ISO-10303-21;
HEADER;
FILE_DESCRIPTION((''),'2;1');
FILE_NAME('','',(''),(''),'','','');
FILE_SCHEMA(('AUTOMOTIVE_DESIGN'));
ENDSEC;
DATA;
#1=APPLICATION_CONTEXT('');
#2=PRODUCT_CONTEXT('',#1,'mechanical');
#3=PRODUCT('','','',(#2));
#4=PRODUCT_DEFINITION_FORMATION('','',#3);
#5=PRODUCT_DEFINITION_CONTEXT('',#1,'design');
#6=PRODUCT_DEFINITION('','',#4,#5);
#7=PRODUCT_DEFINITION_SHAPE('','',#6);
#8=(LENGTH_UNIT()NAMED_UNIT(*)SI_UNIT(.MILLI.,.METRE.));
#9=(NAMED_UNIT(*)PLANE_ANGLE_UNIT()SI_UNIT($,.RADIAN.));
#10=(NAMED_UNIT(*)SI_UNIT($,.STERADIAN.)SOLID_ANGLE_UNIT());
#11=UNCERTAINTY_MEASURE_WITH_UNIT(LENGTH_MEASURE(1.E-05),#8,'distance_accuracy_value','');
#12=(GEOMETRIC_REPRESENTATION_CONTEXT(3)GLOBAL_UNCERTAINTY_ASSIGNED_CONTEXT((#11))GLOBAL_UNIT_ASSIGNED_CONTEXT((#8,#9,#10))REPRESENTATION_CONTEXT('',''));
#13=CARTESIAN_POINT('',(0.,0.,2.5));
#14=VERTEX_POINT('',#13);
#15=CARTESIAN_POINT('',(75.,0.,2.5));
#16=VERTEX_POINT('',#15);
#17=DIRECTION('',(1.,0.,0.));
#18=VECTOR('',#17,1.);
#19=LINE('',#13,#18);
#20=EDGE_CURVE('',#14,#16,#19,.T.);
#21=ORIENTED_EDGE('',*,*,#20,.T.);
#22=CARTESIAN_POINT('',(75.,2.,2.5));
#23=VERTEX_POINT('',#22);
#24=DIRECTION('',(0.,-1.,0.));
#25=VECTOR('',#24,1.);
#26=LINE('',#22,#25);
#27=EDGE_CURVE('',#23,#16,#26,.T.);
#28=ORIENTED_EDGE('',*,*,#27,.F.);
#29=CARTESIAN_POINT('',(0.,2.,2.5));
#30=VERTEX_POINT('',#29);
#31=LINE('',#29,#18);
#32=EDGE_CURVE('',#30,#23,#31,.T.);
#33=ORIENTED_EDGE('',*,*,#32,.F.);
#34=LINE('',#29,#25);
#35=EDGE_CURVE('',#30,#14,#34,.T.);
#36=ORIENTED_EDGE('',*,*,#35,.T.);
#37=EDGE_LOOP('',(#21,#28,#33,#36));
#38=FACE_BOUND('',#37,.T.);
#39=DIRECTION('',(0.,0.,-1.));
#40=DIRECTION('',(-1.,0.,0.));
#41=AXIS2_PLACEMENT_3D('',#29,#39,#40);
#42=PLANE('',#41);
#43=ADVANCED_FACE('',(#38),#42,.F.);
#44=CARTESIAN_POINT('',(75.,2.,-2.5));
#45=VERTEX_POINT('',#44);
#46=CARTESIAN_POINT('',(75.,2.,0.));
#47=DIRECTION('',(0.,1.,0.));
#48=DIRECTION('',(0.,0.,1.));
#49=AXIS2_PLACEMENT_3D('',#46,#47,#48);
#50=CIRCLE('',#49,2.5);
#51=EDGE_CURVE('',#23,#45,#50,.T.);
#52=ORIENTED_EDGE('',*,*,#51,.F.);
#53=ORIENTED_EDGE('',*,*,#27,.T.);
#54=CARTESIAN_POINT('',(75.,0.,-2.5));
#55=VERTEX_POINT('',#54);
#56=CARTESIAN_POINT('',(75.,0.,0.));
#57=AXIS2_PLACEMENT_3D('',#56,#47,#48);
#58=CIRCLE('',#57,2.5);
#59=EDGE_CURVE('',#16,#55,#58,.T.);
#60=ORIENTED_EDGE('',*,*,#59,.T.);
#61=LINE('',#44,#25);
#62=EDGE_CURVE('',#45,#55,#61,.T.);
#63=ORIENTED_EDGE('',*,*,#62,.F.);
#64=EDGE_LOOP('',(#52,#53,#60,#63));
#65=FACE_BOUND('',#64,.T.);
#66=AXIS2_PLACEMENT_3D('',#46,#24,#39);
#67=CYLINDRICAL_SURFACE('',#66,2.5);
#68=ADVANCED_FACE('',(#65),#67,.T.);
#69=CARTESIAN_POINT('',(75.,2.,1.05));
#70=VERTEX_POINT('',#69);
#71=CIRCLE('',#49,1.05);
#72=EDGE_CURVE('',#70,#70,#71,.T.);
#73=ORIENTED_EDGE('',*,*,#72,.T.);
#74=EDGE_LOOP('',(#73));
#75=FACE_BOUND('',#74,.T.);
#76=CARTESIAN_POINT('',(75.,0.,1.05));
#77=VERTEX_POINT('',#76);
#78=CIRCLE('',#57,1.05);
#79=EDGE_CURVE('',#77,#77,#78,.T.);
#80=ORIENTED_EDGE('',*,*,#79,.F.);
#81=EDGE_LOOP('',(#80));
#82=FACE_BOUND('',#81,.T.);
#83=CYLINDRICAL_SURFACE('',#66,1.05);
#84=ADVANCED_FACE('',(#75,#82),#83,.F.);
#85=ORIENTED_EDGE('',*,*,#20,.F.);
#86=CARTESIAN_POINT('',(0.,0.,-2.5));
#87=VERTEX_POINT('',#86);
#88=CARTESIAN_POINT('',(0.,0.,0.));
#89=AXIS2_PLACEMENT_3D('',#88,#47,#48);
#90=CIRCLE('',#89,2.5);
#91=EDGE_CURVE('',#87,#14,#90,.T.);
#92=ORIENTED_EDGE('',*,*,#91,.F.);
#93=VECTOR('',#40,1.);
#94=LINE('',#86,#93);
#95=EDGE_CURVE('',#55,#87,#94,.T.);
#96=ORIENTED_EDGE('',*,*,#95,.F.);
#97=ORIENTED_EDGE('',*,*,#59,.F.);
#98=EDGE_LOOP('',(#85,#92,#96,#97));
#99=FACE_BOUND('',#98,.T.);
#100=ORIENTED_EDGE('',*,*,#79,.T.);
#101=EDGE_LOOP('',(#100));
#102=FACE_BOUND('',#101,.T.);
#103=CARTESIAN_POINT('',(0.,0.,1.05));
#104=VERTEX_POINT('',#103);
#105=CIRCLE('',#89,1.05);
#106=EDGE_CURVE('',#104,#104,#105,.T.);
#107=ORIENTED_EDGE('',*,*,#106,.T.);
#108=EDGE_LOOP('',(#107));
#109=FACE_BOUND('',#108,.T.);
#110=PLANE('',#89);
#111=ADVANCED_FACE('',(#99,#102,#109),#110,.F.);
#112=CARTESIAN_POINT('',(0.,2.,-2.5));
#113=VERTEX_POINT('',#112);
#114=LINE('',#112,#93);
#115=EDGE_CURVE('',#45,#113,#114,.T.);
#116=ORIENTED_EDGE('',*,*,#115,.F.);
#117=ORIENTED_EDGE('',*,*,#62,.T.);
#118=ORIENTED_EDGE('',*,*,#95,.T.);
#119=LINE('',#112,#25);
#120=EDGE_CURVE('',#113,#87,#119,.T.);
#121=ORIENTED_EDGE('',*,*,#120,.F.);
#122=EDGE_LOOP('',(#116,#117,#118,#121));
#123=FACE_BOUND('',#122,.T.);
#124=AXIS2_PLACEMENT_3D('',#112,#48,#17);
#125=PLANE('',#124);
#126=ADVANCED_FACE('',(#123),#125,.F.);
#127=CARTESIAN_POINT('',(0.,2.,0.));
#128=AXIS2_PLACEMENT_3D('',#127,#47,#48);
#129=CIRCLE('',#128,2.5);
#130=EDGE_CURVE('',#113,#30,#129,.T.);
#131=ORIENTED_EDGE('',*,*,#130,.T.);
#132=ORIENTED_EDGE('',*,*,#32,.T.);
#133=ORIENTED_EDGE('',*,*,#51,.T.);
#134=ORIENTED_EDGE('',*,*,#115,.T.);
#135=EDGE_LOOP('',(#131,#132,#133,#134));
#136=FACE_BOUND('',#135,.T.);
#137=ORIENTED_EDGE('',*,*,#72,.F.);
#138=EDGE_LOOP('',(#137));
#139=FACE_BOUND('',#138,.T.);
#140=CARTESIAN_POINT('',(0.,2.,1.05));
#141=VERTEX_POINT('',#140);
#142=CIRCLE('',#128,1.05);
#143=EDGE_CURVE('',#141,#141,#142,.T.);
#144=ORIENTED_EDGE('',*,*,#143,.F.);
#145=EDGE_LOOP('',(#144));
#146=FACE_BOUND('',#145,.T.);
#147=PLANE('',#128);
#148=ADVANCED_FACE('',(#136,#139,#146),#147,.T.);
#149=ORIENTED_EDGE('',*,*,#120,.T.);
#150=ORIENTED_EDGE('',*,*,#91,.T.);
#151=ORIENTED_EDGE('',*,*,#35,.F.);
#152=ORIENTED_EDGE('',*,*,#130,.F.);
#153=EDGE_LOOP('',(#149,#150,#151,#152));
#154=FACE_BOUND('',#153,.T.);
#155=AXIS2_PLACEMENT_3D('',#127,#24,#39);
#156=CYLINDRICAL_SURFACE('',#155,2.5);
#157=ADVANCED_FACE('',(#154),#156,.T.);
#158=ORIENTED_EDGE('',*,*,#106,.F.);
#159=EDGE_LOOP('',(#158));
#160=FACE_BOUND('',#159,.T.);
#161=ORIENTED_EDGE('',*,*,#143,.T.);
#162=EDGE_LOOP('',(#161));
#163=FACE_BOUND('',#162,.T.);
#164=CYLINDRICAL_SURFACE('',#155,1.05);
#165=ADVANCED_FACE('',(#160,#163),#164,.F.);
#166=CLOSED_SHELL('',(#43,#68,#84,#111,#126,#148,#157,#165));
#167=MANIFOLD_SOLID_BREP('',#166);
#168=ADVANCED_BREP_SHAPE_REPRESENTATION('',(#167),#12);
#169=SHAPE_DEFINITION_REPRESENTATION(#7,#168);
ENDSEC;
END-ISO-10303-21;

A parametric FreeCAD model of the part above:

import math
import FreeCAD as App
import Part
import Sketcher

V = App.Vector

doc = App.newDocument("Part")
body = doc.addObject("PartDesign::Body", "Body")

# Sketch on XZ plane
sketch1 = body.newObject("Sketcher::SketchObject", "Sketch")
sketch1.AttachmentSupport = (doc.getObject("XZ_Plane"), [""])
sketch1.MapMode = "FlatFace"
sketch1.addGeometry([
    Part.LineSegment(V(75, -2.5, 0), V(0, -2.5, 0)),  # 0
    Part.ArcOfCircle(Part.Circle(V(0, 0, 0), V(0, 0, 1), 2.5), math.radians(90), math.radians(270)),  # 1
    Part.LineSegment(V(0, 2.5, 0), V(75, 2.5, 0)),  # 2
    Part.ArcOfCircle(Part.Circle(V(75, 0, 0), V(0, 0, 1), 2.5), math.radians(-90), math.radians(90)),  # 3
    Part.Circle(V(75, 0, 0), V(0, 0, 1), 1.1),  # 4
    Part.Circle(V(0, 0, 0), V(0, 0, 1), 1.1),  # 5
], False)
sketch1.addConstraint([
    Sketcher.Constraint("Tangent", 0, 2, 1, 2),
    Sketcher.Constraint("Tangent", 1, 1, 2, 1),
    Sketcher.Constraint("Tangent", 2, 2, 3, 2),
    Sketcher.Constraint("Tangent", 3, 1, 0, 1),
    Sketcher.Constraint("Horizontal", 0),
    Sketcher.Constraint("Horizontal", 2),
    Sketcher.Constraint("Coincident", 1, 3, -1, 1),
    Sketcher.Constraint("Coincident", 5, 3, -1, 1),
    Sketcher.Constraint("Coincident", 4, 3, 3, 3),
    Sketcher.Constraint("Equal", 4, 5),
    Sketcher.Constraint("Diameter", 4, 2.1),
    Sketcher.Constraint("Radius", 1, 2.5),
    Sketcher.Constraint("DistanceX", 0, 2, 0, 1, 75.0),
])
pad1 = body.newObject("PartDesign::Pad", "Pad")
pad1.Profile = sketch1
pad1.Length = 2
pad1.Reversed = True

doc.recompute()
